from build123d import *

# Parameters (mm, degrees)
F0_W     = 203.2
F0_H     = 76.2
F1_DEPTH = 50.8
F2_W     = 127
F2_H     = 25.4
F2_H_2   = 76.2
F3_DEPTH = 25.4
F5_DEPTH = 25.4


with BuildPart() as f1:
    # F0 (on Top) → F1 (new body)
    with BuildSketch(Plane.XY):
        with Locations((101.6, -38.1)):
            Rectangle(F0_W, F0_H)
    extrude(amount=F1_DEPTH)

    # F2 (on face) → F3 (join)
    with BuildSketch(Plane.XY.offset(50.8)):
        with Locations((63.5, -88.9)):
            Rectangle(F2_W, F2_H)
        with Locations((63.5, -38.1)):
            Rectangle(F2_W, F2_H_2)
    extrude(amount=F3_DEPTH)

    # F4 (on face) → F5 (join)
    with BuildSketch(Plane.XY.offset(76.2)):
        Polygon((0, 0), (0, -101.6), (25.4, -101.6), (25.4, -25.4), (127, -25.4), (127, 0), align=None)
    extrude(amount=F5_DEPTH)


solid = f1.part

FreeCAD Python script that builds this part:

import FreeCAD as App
import Part
import Sketcher
from FreeCAD import Vector
Q = App.Units.Quantity


def add_polygon(sketch, points):
    """Adds a closed chain of lines whose ends are joined by coincident constraints."""
    first, n = sketch.GeometryCount, len(points)
    for a, b in zip(points, points[1:] + points[:1]):
        sketch.addGeometry(Part.LineSegment(App.Vector(*a, 0), App.Vector(*b, 0)), False)
    for i in range(n):
        sketch.addConstraint(Sketcher.Constraint("Coincident", first + i, 2, first + (i + 1) % n, 1))

doc = App.newDocument("Part")
body = doc.addObject("PartDesign::Body", "Body")

sketch1 = doc.addObject("Sketcher::SketchObject", "Sketch")
body.addObject(sketch1)
sketch1.AttachmentSupport = (doc.XY_Plane, [""])
sketch1.MapMode = "FlatFace"
add_polygon(sketch1, [(0, 0), (0, -76.2), (203.2, -76.2), (203.2, 0)])
sketch1.addConstraint(Sketcher.Constraint("Vertical", 0))
sketch1.addConstraint(Sketcher.Constraint("Horizontal", 1))
sketch1.addConstraint(Sketcher.Constraint("Vertical", 2))
sketch1.addConstraint(Sketcher.Constraint("Horizontal", 3))
sketch1.addConstraint(Sketcher.Constraint("Coincident", 3, 2, -1, 1))
sketch1.addConstraint(Sketcher.Constraint("DistanceX", 1, 1, 1, 2, Q("8 in")))
sketch1.addConstraint(Sketcher.Constraint("DistanceY", 0, 2, 0, 1, Q("3 in")))
pad1 = doc.addObject("PartDesign::Pad", "Pad")
body.addObject(pad1)
pad1.Profile = sketch1
pad1.Length = Q("2 in")

sketch2 = doc.addObject("Sketcher::SketchObject", "Sketch001")
body.addObject(sketch2)
sketch2.AttachmentSupport = (doc.XY_Plane, [""])
sketch2.MapMode = "FlatFace"
sketch2.AttachmentOffset = App.Placement(Vector(0, 0, 2 * 25.4), App.Rotation())
add_polygon(sketch2, [(0, -101.6), (127, -101.6), (127, 0), (0, 0)])
sketch2.addConstraint(Sketcher.Constraint("Horizontal", 0))
sketch2.addConstraint(Sketcher.Constraint("Vertical", 1))
sketch2.addConstraint(Sketcher.Constraint("Horizontal", 2))
sketch2.addConstraint(Sketcher.Constraint("Vertical", 3))
sketch2.addConstraint(Sketcher.Constraint("Coincident", 2, 2, -1, 1))
sketch2.addConstraint(Sketcher.Constraint("DistanceX", 0, 1, 0, 2, Q("5 in")))
sketch2.addConstraint(Sketcher.Constraint("DistanceY", 1, 1, 1, 2, Q("4 in")))
pad2 = doc.addObject("PartDesign::Pad", "Pad001")
body.addObject(pad2)
pad2.Profile = sketch2
pad2.Length = Q("1 in")

sketch3 = doc.addObject("Sketcher::SketchObject", "Sketch002")
body.addObject(sketch3)
sketch3.AttachmentSupport = (doc.XY_Plane, [""])
sketch3.MapMode = "FlatFace"
sketch3.AttachmentOffset = App.Placement(Vector(0, 0, 3 * 25.4), App.Rotation())
add_polygon(sketch3, [(0, 0), (0, -101.6), (25.4, -101.6), (25.4, -25.4), (127, -25.4), (127, 0)])
sketch3.addConstraint(Sketcher.Constraint("Vertical", 0))
sketch3.addConstraint(Sketcher.Constraint("Horizontal", 1))
sketch3.addConstraint(Sketcher.Constraint("Vertical", 2))
sketch3.addConstraint(Sketcher.Constraint("Horizontal", 3))
sketch3.addConstraint(Sketcher.Constraint("Vertical", 4))
sketch3.addConstraint(Sketcher.Constraint("Horizontal", 5))
sketch3.addConstraint(Sketcher.Constraint("Coincident", 5, 2, -1, 1))
sketch3.addConstraint(Sketcher.Constraint("Equal", 3, 0))
sketch3.addConstraint(Sketcher.Constraint("Equal", 1, 4))
sketch3.addConstraint(Sketcher.Constraint("DistanceX", 1, 1, 1, 2, Q("1 in")))
sketch3.addConstraint(Sketcher.Constraint("DistanceX", 3, 1, 3, 2, Q("4 in")))
pad3 = doc.addObject("PartDesign::Pad", "Pad002")
body.addObject(pad3)
pad3.Profile = sketch3
pad3.Length = Q("1 in")

doc.recompute()
